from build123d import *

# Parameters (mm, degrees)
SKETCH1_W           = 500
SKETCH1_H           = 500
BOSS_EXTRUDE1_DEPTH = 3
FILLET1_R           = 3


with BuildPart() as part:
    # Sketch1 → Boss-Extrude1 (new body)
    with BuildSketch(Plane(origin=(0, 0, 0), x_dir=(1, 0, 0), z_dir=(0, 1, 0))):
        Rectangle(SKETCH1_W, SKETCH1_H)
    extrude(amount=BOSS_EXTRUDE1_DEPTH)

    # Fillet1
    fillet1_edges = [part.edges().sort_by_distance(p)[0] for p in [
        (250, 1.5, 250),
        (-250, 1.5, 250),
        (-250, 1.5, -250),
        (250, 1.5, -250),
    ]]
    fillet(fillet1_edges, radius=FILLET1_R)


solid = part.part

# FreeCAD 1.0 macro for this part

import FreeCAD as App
import Part
import Sketcher

V = App.Vector
Q = App.Units.Quantity


def edges_at(feature, points):
    """Names of the edges that pass closest to the given points."""
    edges = feature.Shape.Edges
    near = lambda p: min(range(len(edges)), key=lambda i: edges[i].distToShape(Part.Vertex(*p))[0])
    return sorted({f"Edge{near(p) + 1}" for p in points})

doc = App.newDocument("Part")
body = doc.addObject("PartDesign::Body", "Body")

# Sketch on XZ plane
sketch1 = body.newObject("Sketcher::SketchObject", "Sketch")
sketch1.AttachmentSupport = (doc.getObject("XZ_Plane"), [""])
sketch1.MapMode = "FlatFace"
sketch1.addGeometry([
    Part.LineSegment(V(-250, -250, 0), V(-250, 250, 0)),
    Part.LineSegment(V(-250, 250, 0), V(250, 250, 0)),
    Part.LineSegment(V(250, 250, 0), V(250, -250, 0)),
    Part.LineSegment(V(250, -250, 0), V(-250, -250, 0)),
], False)
sketch1.addConstraint([
    Sketcher.Constraint("Coincident", 0, 2, 1, 1),
    Sketcher.Constraint("Coincident", 1, 2, 2, 1),
    Sketcher.Constraint("Coincident", 2, 2, 3, 1),
    Sketcher.Constraint("Coincident", 3, 2, 0, 1),
    Sketcher.Constraint("Vertical", 0),
    Sketcher.Constraint("Horizontal", 1),
    Sketcher.Constraint("Vertical", 2),
    Sketcher.Constraint("Horizontal", 3),
    Sketcher.Constraint("Symmetric", 0, 2, 2, 2, -1, 1),
    Sketcher.Constraint("Equal", 3, 0),
    Sketcher.Constraint("DistanceX", 1, 1, 1, 2, Q("500 mm")),
])
pad1 = body.newObject("PartDesign::Pad", "Pad")
pad1.Profile = sketch1
pad1.Length = 3
pad1.Reversed = True
doc.recompute()

fillet = body.newObject("PartDesign::Fillet", "Fillet")
fillet.Base = (pad1, edges_at(pad1, [
    (250, 1.5, 250),
    (-250, 1.5, 250),
    (-250, 1.5, -250),
    (250, 1.5, -250),
]))
fillet.Radius = 3

doc.recompute()
